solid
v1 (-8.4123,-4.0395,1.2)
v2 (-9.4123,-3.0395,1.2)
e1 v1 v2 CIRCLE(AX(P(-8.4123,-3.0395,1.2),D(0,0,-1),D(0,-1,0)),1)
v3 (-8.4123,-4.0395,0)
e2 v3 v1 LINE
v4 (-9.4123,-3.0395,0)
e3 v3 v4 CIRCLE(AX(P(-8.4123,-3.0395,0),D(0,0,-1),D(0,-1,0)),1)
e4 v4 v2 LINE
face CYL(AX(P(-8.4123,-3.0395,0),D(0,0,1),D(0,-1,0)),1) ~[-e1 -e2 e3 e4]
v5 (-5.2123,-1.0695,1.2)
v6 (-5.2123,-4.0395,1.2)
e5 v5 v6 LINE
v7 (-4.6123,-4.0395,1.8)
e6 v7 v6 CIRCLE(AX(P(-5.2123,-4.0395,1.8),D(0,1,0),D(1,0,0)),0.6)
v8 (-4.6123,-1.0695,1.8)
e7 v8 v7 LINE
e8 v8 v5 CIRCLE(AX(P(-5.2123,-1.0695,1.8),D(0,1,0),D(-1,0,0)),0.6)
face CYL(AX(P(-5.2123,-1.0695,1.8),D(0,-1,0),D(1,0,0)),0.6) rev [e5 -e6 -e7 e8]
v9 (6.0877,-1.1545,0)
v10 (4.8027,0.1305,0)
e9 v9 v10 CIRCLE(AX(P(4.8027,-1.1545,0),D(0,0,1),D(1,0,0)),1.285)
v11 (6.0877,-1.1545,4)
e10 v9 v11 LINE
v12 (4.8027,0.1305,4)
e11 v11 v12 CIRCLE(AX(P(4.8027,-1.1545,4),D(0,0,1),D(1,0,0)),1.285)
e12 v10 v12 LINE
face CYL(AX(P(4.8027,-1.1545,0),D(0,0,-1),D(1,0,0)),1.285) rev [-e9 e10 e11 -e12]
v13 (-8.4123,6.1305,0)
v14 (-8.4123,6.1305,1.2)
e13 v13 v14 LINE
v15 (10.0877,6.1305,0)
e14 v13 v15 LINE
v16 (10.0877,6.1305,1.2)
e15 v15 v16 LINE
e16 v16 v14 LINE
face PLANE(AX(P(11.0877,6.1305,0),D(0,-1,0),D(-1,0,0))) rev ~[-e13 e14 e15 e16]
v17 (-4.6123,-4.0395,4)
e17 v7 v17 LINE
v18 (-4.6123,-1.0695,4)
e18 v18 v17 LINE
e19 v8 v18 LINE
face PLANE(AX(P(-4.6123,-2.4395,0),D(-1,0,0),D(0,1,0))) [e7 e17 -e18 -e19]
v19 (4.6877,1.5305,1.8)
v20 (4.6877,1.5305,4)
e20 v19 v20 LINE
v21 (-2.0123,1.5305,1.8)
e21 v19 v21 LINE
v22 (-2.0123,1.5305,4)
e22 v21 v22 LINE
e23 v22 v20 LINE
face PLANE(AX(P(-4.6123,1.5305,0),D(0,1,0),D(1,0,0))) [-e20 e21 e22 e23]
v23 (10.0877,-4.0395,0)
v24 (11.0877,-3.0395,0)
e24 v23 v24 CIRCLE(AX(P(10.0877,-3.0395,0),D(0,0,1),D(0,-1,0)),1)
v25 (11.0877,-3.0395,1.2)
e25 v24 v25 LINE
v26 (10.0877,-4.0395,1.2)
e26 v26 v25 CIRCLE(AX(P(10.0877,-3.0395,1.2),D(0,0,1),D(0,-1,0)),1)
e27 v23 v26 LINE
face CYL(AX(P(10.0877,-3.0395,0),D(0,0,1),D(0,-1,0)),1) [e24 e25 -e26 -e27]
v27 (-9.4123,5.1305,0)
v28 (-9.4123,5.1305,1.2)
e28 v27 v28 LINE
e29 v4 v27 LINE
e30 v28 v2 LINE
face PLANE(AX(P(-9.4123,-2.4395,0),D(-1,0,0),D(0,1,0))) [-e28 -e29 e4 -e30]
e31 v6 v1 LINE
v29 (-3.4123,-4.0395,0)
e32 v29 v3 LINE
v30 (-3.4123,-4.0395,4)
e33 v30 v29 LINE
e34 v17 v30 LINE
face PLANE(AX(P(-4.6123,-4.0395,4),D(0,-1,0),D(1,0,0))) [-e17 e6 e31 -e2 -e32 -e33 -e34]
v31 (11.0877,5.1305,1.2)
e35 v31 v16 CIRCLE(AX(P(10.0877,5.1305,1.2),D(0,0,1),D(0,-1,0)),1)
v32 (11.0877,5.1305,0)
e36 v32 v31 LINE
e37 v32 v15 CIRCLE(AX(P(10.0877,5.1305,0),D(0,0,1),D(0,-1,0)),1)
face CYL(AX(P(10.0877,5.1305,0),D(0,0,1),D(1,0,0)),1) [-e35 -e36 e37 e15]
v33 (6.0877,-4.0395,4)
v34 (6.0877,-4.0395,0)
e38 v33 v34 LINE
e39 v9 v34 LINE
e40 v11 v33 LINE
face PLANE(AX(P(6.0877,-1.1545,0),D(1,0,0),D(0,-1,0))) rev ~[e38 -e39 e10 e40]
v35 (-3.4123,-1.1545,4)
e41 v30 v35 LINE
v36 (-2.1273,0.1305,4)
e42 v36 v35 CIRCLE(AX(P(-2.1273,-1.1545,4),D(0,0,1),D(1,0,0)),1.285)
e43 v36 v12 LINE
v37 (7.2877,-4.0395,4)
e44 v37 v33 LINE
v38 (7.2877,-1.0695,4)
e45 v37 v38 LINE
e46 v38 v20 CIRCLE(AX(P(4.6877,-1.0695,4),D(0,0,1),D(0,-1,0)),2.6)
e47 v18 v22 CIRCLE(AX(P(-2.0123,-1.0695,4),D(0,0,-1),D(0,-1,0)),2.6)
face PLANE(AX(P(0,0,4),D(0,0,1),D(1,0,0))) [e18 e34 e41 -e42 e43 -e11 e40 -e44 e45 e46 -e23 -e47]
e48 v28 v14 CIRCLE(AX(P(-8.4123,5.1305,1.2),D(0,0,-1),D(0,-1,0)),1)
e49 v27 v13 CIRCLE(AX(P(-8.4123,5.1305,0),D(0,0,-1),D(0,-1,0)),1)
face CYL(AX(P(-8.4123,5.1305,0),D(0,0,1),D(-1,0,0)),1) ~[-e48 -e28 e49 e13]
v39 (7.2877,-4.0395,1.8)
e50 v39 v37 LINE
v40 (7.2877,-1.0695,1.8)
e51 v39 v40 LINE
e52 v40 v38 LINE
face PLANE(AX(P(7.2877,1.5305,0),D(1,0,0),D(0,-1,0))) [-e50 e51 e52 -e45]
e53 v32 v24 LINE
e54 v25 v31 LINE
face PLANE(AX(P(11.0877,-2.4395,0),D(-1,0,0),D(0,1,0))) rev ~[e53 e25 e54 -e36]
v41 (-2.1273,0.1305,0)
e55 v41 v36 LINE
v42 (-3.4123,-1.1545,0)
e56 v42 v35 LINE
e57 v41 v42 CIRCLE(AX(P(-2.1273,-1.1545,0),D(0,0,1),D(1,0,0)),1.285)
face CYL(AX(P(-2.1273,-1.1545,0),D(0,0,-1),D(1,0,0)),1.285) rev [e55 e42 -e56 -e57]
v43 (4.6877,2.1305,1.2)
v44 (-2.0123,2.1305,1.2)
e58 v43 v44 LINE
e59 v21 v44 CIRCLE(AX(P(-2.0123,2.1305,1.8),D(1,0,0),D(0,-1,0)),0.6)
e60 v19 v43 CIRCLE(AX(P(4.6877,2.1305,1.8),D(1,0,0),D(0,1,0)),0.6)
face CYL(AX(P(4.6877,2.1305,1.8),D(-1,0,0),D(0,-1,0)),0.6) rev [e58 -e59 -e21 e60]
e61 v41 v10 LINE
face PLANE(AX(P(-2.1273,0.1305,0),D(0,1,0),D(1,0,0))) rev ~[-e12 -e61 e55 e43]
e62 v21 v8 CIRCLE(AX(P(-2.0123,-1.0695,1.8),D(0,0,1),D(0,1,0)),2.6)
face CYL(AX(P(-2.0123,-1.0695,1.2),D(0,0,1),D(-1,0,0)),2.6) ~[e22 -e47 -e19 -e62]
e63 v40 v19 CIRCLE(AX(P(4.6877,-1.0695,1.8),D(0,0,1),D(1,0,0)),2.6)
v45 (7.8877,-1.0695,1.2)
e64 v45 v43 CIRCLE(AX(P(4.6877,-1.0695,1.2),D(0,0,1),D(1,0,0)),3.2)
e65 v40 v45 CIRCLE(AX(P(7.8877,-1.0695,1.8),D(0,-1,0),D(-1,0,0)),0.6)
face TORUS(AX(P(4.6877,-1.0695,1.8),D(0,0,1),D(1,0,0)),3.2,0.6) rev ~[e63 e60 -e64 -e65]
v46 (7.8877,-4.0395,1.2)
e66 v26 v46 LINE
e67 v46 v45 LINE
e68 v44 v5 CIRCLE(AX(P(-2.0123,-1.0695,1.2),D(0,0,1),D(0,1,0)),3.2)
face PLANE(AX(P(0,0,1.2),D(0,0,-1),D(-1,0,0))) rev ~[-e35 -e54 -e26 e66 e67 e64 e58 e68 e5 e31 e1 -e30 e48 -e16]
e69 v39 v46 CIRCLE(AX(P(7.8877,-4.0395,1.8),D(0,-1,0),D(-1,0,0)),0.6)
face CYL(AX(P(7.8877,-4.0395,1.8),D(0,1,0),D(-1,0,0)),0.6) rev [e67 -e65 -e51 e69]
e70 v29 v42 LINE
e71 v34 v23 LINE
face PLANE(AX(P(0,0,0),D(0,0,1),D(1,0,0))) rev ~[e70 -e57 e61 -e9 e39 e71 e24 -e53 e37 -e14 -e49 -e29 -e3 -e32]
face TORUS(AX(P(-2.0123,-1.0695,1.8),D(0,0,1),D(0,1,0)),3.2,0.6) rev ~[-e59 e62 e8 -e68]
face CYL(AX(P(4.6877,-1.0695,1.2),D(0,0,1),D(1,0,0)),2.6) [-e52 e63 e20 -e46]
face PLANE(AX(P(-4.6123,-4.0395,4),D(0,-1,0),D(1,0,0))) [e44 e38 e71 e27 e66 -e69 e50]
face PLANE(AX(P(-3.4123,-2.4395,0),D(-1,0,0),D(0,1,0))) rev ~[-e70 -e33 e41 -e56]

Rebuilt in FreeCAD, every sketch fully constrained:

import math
import FreeCAD as App
import Part
import Sketcher
from FreeCAD import Vector
Q = App.Units.Quantity


def edges_at(feature, points):
    """Names of the edges that pass closest to the given points."""
    edges = feature.Shape.Edges
    near = lambda p: min(range(len(edges)), key=lambda i: edges[i].distToShape(Part.Vertex(*p))[0])
    return sorted({f"Edge{near(p) + 1}" for p in points})

doc = App.newDocument("Part")
body = doc.addObject("PartDesign::Body", "Body")

sketch1 = doc.addObject("Sketcher::SketchObject", "Sketch")
body.addObject(sketch1)
sketch1.AttachmentSupport = (doc.XY_Plane, [""])
sketch1.MapMode = "FlatFace"
sketch1.addGeometry(Part.LineSegment(Vector(-3.4, -2.4, 0), Vector(-3.4, -1.2, 0)), False)
sketch1.addGeometry(Part.ArcOfCircle(Part.Circle(Vector(-2.1, -1.2, 0), Vector(0, 0, 1), 1.3), math.radians(90), math.radians(180)), False)
sketch1.addGeometry(Part.LineSegment(Vector(-2.1, 0.1, 0), Vector(4.8, 0.1, 0)), False)
sketch1.addGeometry(Part.ArcOfCircle(Part.Circle(Vector(4.8, -1.2, 0), Vector(0, 0, 1), 1.3), math.radians(0), math.radians(90)), False)
sketch1.addGeometry(Part.LineSegment(Vector(6.1, -1.2, 0), Vector(6.1, -2.4, 0)), False)
sketch1.addGeometry(Part.LineSegment(Vector(6.1, -2.4, 0), Vector(7.3, -2.4, 0)), False)
sketch1.addGeometry(Part.LineSegment(Vector(7.3, -2.4, 0), Vector(7.3, 1.5, 0)), False)
sketch1.addGeometry(Part.LineSegment(Vector(7.3, 1.5, 0), Vector(-4.6, 1.5, 0)), False)
sketch1.addGeometry(Part.LineSegment(Vector(-4.6, 1.5, 0), Vector(-4.6, -2.4, 0)), False)
sketch1.addGeometry(Part.LineSegment(Vector(-4.6, -2.4, 0), Vector(-3.4, -2.4, 0)), False)
sketch1.addConstraint(Sketcher.Constraint("Tangent", 0, 2, 1, 2))
sketch1.addConstraint(Sketcher.Constraint("Tangent", 1, 1, 2, 1))
sketch1.addConstraint(Sketcher.Constraint("Tangent", 2, 2, 3, 2))
sketch1.addConstraint(Sketcher.Constraint("Tangent", 3, 1, 4, 1))
sketch1.addConstraint(Sketcher.Constraint("Coincident", 4, 2, 5, 1))
sketch1.addConstraint(Sketcher.Constraint("Coincident", 5, 2, 6, 1))
sketch1.addConstraint(Sketcher.Constraint("Coincident", 6, 2, 7, 1))
sketch1.addConstraint(Sketcher.Constraint("Coincident", 7, 2, 8, 1))
sketch1.addConstraint(Sketcher.Constraint("Coincident", 8, 2, 9, 1))
sketch1.addConstraint(Sketcher.Constraint("Coincident", 9, 2, 0, 1))
sketch1.addConstraint(Sketcher.Constraint("Vertical", 0))
sketch1.addConstraint(Sketcher.Constraint("Horizontal", 2))
sketch1.addConstraint(Sketcher.Constraint("Vertical", 4))
sketch1.addConstraint(Sketcher.Constraint("Horizontal", 5))
sketch1.addConstraint(Sketcher.Constraint("Vertical", 6))
sketch1.addConstraint(Sketcher.Constraint("Horizontal", 7))
sketch1.addConstraint(Sketcher.Constraint("Vertical", 8))
sketch1.addConstraint(Sketcher.Constraint("Horizontal", 9))
sketch1.addConstraint(Sketcher.Constraint("Equal", 1, 3))
sketch1.addConstraint(Sketcher.Constraint("Horizontal", 5, 2, 8, 2))
sketch1.addConstraint(Sketcher.Constraint("Equal", 5, 9))
sketch1.addConstraint(Sketcher.Constraint("DistanceX", 5, 1, 5, 2, Q("1.2 mm")))
sketch1.addConstraint(Sketcher.Constraint("Radius", 1, Q("1.285 mm")))
sketch1.addConstraint(Sketcher.Constraint("DistanceX", 0, 2, 3, 1, Q("9.5 mm")))
sketch1.addConstraint(Sketcher.Constraint("DistanceY", 2, 2, 6, 2, Q("1.4 mm")))
sketch1.addConstraint(Sketcher.Constraint("DistanceY", 0, 1, 0, 2, Q("1.285 mm")))
sketch1.addConstraint(Sketcher.Constraint("DistanceX", 1, 3, -1, 1, Q("2.1273 mm")))
sketch1.addConstraint(Sketcher.Constraint("DistanceY", 1, 3, -1, 1, Q("1.1545 mm")))
pad1 = doc.addObject("PartDesign::Pad", "Pad")
body.addObject(pad1)
pad1.Profile = sketch1
pad1.Length = 4

sketch2 = doc.addObject("Sketcher::SketchObject", "Sketch001")
body.addObject(sketch2)
sketch2.AttachmentSupport = (doc.XY_Plane, [""])
sketch2.MapMode = "FlatFace"
sketch2.addGeometry(Part.LineSegment(Vector(6.7, -2.4, 0), Vector(6.7, 1.5, 0)), False)
sketch2.addGeometry(Part.LineSegment(Vector(6.7, 1.5, 0), Vector(-4, 1.5, 0)), False)
sketch2.addGeometry(Part.LineSegment(Vector(-4, 1.5, 0), Vector(-4, -2.4, 0)), False)
sketch2.addGeometry(Part.LineSegment(Vector(-4, -2.4, 0), Vector(-9.4, -2.4, 0)), False)
sketch2.addGeometry(Part.LineSegment(Vector(-9.4, -2.4, 0), Vector(-9.4, 6.1, 0)), False)
sketch2.addGeometry(Part.LineSegment(Vector(-9.4, 6.1, 0), Vector(11.1, 6.1, 0)), False)
sketch2.addGeometry(Part.LineSegment(Vector(11.1, 6.1, 0), Vector(11.1, -2.4, 0)), False)
sketch2.addGeometry(Part.LineSegment(Vector(11.1, -2.4, 0), Vector(6.7, -2.4, 0)), False)
sketch2.addConstraint(Sketcher.Constraint("Coincident", 0, 2, 1, 1))
sketch2.addConstraint(Sketcher.Constraint("Coincident", 1, 2, 2, 1))
sketch2.addConstraint(Sketcher.Constraint("Coincident", 2, 2, 3, 1))
sketch2.addConstraint(Sketcher.Constraint("Coincident", 3, 2, 4, 1))
sketch2.addConstraint(Sketcher.Constraint("Coincident", 4, 2, 5, 1))
sketch2.addConstraint(Sketcher.Constraint("Coincident", 5, 2, 6, 1))
sketch2.addConstraint(Sketcher.Constraint("Coincident", 6, 2, 7, 1))
sketch2.addConstraint(Sketcher.Constraint("Coincident", 7, 2, 0, 1))
sketch2.addConstraint(Sketcher.Constraint("Vertical", 0))
sketch2.addConstraint(Sketcher.Constraint("Horizontal", 1))
sketch2.addConstraint(Sketcher.Constraint("Vertical", 2))
sketch2.addConstraint(Sketcher.Constraint("Horizontal", 3))
sketch2.addConstraint(Sketcher.Constraint("Vertical", 4))
sketch2.addConstraint(Sketcher.Constraint("Horizontal", 5))
sketch2.addConstraint(Sketcher.Constraint("Vertical", 6))
sketch2.addConstraint(Sketcher.Constraint("Horizontal", 7))
sketch2.addConstraint(Sketcher.Constraint("Horizontal", 3, 2, 6, 2))
sketch2.addConstraint(Sketcher.Constraint("DistanceX", 1, 2, 1, 1, Q("10.7 mm")))
sketch2.addConstraint(Sketcher.Constraint("DistanceX", 3, 2, 3, 1, Q("5.4 mm")))
sketch2.addConstraint(Sketcher.Constraint("DistanceX", 5, 1, 5, 2, Q("20.5 mm")))
sketch2.addConstraint(Sketcher.Constraint("DistanceY", 0, 1, 0, 2, Q("3.97 mm")))
sketch2.addConstraint(Sketcher.Constraint("DistanceY", 4, 1, 4, 2, Q("8.57 mm")))
sketch2.addConstraint(Sketcher.Constraint("DistanceX", -1, 1, 0, 2, Q("6.6877 mm")))
sketch2.addConstraint(Sketcher.Constraint("DistanceY", -1, 1, 0, 2, Q("1.5305 mm")))
pad2 = doc.addObject("PartDesign::Pad", "Pad001")
body.addObject(pad2)
pad2.Profile = sketch2
pad2.Length = 1.2
doc.recompute()

fillet = doc.addObject("PartDesign::Fillet", "Fillet")
body.addObject(fillet)
fillet.Base = (pad2, edges_at(pad2, [(-4.612, 1.53, 2.6), (7.288, 1.53, 2.6)]))
fillet.Radius = 2.6

sketch3 = doc.addObject("Sketcher::SketchObject", "Sketch002")
body.addObject(sketch3)
sketch3.AttachmentSupport = (doc.XZ_Plane, [""])
sketch3.MapMode = "FlatFace"
sketch3.AttachmentOffset = App.Placement(Vector(0, 0, 2.4395), App.Rotation())
sketch3.addGeometry(Part.LineSegment(Vector(11.1, 0, 0), Vector(11.1, 1.2, 0)), False)
sketch3.addGeometry(Part.LineSegment(Vector(11.1, 1.2, 0), Vector(7.3, 1.2, 0)), False)
sketch3.addGeometry(Part.LineSegment(Vector(7.3, 1.2, 0), Vector(7.3, 4, 0)), False)
sketch3.addGeometry(Part.LineSegment(Vector(7.3, 4, 0), Vector(6.1, 4, 0)), False)
sketch3.addGeometry(Part.LineSegment(Vector(6.1, 4, 0), Vector(6.1, 0, 0)), False)
sketch3.addGeometry(Part.LineSegment(Vector(6.1, 0, 0), Vector(11.1, 0, 0)), False)
sketch3.addGeometry(Part.LineSegment(Vector(-3.4, 0, 0), Vector(-3.4, 4, 0)), False)
sketch3.addGeometry(Part.LineSegment(Vector(-3.4, 4, 0), Vector(-4.6, 4, 0)), False)
sketch3.addGeometry(Part.LineSegment(Vector(-4.6, 4, 0), Vector(-4.6, 1.2, 0)), False)
sketch3.addGeometry(Part.LineSegment(Vector(-4.6, 1.2, 0), Vector(-9.4, 1.2, 0)), False)
sketch3.addGeometry(Part.LineSegment(Vector(-9.4, 1.2, 0), Vector(-9.4, 0, 0)), False)
sketch3.addGeometry(Part.LineSegment(Vector(-9.4, 0, 0), Vector(-3.4, 0, 0)), False)
sketch3.addConstraint(Sketcher.Constraint("Coincident", 0, 2, 1, 1))
sketch3.addConstraint(Sketcher.Constraint("Coincident", 1, 2, 2, 1))
sketch3.addConstraint(Sketcher.Constraint("Coincident", 2, 2, 3, 1))
sketch3.addConstraint(Sketcher.Constraint("Coincident", 3, 2, 4, 1))
sketch3.addConstraint(Sketcher.Constraint("Coincident", 4, 2, 5, 1))
sketch3.addConstraint(Sketcher.Constraint("Coincident", 5, 2, 0, 1))
sketch3.addConstraint(Sketcher.Constraint("Coincident", 6, 2, 7, 1))
sketch3.addConstraint(Sketcher.Constraint("Coincident", 7, 2, 8, 1))
sketch3.addConstraint(Sketcher.Constraint("Coincident", 8, 2, 9, 1))
sketch3.addConstraint(Sketcher.Constraint("Coincident", 9, 2, 10, 1))
sketch3.addConstraint(Sketcher.Constraint("Coincident", 10, 2, 11, 1))
sketch3.addConstraint(Sketcher.Constraint("Coincident", 11, 2, 6, 1))
sketch3.addConstraint(Sketcher.Constraint("Vertical", 0))
sketch3.addConstraint(Sketcher.Constraint("Horizontal", 1))
sketch3.addConstraint(Sketcher.Constraint("Vertical", 2))
sketch3.addConstraint(Sketcher.Constraint("Horizontal", 3))
sketch3.addConstraint(Sketcher.Constraint("Vertical", 4))
sketch3.addConstraint(Sketcher.Constraint("Horizontal", 5))
sketch3.addConstraint(Sketcher.Constraint("Vertical", 6))
sketch3.addConstraint(Sketcher.Constraint("Horizontal", 7))
sketch3.addConstraint(Sketcher.Constraint("Vertical", 8))
sketch3.addConstraint(Sketcher.Constraint("Horizontal", 9))
sketch3.addConstraint(Sketcher.Constraint("Vertical", 10))
sketch3.addConstraint(Sketcher.Constraint("Horizontal", 11))
sketch3.addConstraint(Sketcher.Constraint("PointOnObject", 4, 2, -1))
sketch3.addConstraint(Sketcher.Constraint("PointOnObject", 10, 2, -1))
sketch3.addConstraint(Sketcher.Constraint("Horizontal", 3, 2, 6, 2))
sketch3.addConstraint(Sketcher.Constraint("Horizontal", 1, 2, 8, 2))
sketch3.addConstraint(Sketcher.Constraint("Equal", 3, 7))
sketch3.addConstraint(Sketcher.Constraint("Equal", 7, 0))
sketch3.addConstraint(Sketcher.Constraint("DistanceX", 5, 1, 5, 2, Q("5 mm")))
sketch3.addConstraint(Sketcher.Constraint("DistanceX", 11, 1, 11, 2, Q("6 mm")))
sketch3.addConstraint(Sketcher.Constraint("DistanceY", 4, 2, 4, 1, Q("4 mm")))
sketch3.addConstraint(Sketcher.Constraint("DistanceX", 1, 2, 1, 1, Q("3.8 mm")))
sketch3.addConstraint(Sketcher.Constraint("DistanceX", 6, 2, 3, 2, Q("9.5 mm")))
sketch3.addConstraint(Sketcher.Constraint("DistanceX", -1, 1, 0, 2, Q("11.0877 mm")))
pad3 = doc.addObject("PartDesign::Pad", "Pad002")
body.addObject(pad3)
pad3.Profile = sketch3
pad3.Length = 1.6
doc.recompute()

fillet2 = doc.addObject("PartDesign::Fillet", "Fillet001")
body.addObject(fillet2)
fillet2.Base = (pad3, edges_at(pad3, [
    (6.526, 0.769, 1.2),
    (1.338, 1.53, 1.2),
    (-3.851, 0.769, 1.2),
    (-4.612, -2.554, 1.2),
    (7.288, -2.554, 1.2),
]))
fillet2.Radius = 0.6
doc.recompute()

fillet3 = doc.addObject("PartDesign::Fillet", "Fillet002")
body.addObject(fillet3)
fillet3.Base = (fillet2, edges_at(fillet2, [
    (-9.412, -4.04, 0.6),
    (-9.412, 6.13, 0.6),
    (11.088, 6.13, 0.6),
    (11.088, -4.04, 0.6),
]))
fillet3.Radius = 1

doc.recompute()
